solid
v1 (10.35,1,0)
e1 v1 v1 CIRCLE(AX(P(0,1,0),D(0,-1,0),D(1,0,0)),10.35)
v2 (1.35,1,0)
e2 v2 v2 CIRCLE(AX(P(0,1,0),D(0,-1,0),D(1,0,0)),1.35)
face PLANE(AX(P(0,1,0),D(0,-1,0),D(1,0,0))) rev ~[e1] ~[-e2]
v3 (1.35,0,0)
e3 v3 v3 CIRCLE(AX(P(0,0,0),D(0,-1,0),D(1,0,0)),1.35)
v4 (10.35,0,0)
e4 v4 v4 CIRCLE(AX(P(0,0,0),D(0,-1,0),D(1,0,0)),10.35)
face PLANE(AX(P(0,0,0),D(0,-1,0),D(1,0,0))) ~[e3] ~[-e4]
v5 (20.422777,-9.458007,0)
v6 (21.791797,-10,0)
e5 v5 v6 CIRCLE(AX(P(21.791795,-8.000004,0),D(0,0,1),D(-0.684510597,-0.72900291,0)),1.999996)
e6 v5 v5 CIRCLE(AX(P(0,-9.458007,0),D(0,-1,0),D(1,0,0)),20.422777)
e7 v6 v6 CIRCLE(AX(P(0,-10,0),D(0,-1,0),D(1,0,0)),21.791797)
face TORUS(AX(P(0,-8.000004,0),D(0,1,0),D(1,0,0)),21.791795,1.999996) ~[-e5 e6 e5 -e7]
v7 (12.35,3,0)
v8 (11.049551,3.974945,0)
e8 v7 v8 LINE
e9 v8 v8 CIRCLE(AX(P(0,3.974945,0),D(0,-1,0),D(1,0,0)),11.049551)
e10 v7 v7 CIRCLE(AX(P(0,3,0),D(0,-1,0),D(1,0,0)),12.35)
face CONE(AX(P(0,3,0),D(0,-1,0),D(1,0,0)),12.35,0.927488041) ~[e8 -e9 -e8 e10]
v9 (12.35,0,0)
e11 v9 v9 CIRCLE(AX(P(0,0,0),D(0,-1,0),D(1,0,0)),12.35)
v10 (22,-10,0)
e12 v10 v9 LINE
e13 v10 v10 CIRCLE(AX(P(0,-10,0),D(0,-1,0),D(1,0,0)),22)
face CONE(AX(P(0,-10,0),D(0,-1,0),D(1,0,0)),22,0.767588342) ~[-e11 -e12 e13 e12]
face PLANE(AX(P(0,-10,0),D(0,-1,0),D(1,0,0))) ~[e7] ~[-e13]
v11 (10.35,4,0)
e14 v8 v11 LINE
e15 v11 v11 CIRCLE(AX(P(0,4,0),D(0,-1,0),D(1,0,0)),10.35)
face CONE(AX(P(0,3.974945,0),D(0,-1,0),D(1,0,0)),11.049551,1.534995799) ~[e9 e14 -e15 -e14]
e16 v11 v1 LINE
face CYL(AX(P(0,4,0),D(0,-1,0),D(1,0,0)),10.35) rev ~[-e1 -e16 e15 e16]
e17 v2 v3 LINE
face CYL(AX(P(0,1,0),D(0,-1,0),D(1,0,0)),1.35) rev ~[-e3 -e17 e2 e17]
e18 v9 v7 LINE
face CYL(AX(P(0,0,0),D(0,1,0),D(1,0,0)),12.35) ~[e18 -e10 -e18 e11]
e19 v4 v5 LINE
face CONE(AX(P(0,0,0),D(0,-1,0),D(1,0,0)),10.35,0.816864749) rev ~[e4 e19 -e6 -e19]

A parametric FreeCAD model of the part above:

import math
import FreeCAD as App
import Part
import Sketcher
from FreeCAD import Vector
Q = App.Units.Quantity

doc = App.newDocument("Part")
body = doc.addObject("PartDesign::Body", "Body")

# Sketch on XY plane
sketch1 = body.newObject("Sketcher::SketchObject", "Sketch")
sketch1.AttachmentSupport = (doc.getObject("XY_Plane"), [""])
sketch1.MapMode = "FlatFace"
sketch1.addGeometry([
    Part.LineSegment(Vector(22, -10, 0), Vector(12.35, 0, 0)),  # 0
    Part.LineSegment(Vector(12.35, 0, 0), Vector(12.35, 3, 0)),  # 1
    Part.LineSegment(Vector(12.35, 3, 0), Vector(11.05, 3.97, 0)),  # 2
    Part.LineSegment(Vector(11.05, 3.97, 0), Vector(10.35, 4, 0)),  # 3
    Part.LineSegment(Vector(10.35, 4, 0), Vector(10.35, 1, 0)),  # 4
    Part.LineSegment(Vector(10.35, 1, 0), Vector(1.35, 1, 0)),  # 5
    Part.LineSegment(Vector(1.35, 1, 0), Vector(1.35, 0, 0)),  # 6
    Part.LineSegment(Vector(1.35, 0, 0), Vector(10.35, 0, 0)),  # 7
    Part.LineSegment(Vector(10.35, 0, 0), Vector(20.42, -9.46, 0)),  # 8
    Part.ArcOfCircle(Part.Circle(Vector(21.79, -8, 0), Vector(0, 0, 1), 2), math.radians(-133), math.radians(-90)),  # 9
    Part.LineSegment(Vector(21.79, -10, 0), Vector(22, -10, 0)),  # 10
], False)
sketch1.addConstraint([
    Sketcher.Constraint("Coincident", 0, 2, 1, 1),
    Sketcher.Constraint("Coincident", 1, 2, 2, 1),
    Sketcher.Constraint("Coincident", 2, 2, 3, 1),
    Sketcher.Constraint("Coincident", 3, 2, 4, 1),
    Sketcher.Constraint("Coincident", 4, 2, 5, 1),
    Sketcher.Constraint("Coincident", 5, 2, 6, 1),
    Sketcher.Constraint("Coincident", 6, 2, 7, 1),
    Sketcher.Constraint("Coincident", 7, 2, 8, 1),
    Sketcher.Constraint("Tangent", 8, 2, 9, 1),
    Sketcher.Constraint("Tangent", 9, 2, 10, 1),
    Sketcher.Constraint("Coincident", 10, 2, 0, 1),
    Sketcher.Constraint("Vertical", 1),
    Sketcher.Constraint("Vertical", 4),
    Sketcher.Constraint("Horizontal", 5),
    Sketcher.Constraint("Vertical", 6),
    Sketcher.Constraint("Horizontal", 7),
    Sketcher.Constraint("Horizontal", 10),
    Sketcher.Constraint("PointOnObject", 0, 2, -1),
    Sketcher.Constraint("PointOnObject", 6, 2, -1),
    Sketcher.Constraint("Vertical", 4, 2, 7, 2),
    Sketcher.Constraint("Equal", 1, 4),
    Sketcher.Constraint("DistanceX", 5, 2, 5, 1, Q("9 mm")),
    Sketcher.Constraint("DistanceY", 1, 1, 1, 2, Q("3 mm")),
    Sketcher.Constraint("DistanceY", 6, 2, 6, 1, Q("1 mm")),
    Sketcher.Constraint("DistanceY", 9, 2, -1, 1, Q("10 mm")),
    Sketcher.Constraint("DistanceX", -1, 1, 10, 2, Q("22 mm")),
    Sketcher.Constraint("DistanceX", 3, 2, 1, 2, Q("2 mm")),
    Sketcher.Constraint("Distance", 3, Q("0.7 mm")),
    Sketcher.Constraint("DistanceX", -1, 1, 0, 2, Q("12.35 mm")),
    Sketcher.Constraint("Radius", 9, Q("1.999996 mm")),
    Sketcher.Constraint("Distance", 8, Q("13.81719 mm")),
    Sketcher.Constraint("DistanceX", -1, 1, 2, 2, Q("11.049551 mm")),
])
revolution = body.newObject("PartDesign::Revolution", "Revolution")
revolution.Profile = sketch1
revolution.ReferenceAxis = (sketch1, ["V_Axis"])
revolution.Angle = 360

doc.recompute()
